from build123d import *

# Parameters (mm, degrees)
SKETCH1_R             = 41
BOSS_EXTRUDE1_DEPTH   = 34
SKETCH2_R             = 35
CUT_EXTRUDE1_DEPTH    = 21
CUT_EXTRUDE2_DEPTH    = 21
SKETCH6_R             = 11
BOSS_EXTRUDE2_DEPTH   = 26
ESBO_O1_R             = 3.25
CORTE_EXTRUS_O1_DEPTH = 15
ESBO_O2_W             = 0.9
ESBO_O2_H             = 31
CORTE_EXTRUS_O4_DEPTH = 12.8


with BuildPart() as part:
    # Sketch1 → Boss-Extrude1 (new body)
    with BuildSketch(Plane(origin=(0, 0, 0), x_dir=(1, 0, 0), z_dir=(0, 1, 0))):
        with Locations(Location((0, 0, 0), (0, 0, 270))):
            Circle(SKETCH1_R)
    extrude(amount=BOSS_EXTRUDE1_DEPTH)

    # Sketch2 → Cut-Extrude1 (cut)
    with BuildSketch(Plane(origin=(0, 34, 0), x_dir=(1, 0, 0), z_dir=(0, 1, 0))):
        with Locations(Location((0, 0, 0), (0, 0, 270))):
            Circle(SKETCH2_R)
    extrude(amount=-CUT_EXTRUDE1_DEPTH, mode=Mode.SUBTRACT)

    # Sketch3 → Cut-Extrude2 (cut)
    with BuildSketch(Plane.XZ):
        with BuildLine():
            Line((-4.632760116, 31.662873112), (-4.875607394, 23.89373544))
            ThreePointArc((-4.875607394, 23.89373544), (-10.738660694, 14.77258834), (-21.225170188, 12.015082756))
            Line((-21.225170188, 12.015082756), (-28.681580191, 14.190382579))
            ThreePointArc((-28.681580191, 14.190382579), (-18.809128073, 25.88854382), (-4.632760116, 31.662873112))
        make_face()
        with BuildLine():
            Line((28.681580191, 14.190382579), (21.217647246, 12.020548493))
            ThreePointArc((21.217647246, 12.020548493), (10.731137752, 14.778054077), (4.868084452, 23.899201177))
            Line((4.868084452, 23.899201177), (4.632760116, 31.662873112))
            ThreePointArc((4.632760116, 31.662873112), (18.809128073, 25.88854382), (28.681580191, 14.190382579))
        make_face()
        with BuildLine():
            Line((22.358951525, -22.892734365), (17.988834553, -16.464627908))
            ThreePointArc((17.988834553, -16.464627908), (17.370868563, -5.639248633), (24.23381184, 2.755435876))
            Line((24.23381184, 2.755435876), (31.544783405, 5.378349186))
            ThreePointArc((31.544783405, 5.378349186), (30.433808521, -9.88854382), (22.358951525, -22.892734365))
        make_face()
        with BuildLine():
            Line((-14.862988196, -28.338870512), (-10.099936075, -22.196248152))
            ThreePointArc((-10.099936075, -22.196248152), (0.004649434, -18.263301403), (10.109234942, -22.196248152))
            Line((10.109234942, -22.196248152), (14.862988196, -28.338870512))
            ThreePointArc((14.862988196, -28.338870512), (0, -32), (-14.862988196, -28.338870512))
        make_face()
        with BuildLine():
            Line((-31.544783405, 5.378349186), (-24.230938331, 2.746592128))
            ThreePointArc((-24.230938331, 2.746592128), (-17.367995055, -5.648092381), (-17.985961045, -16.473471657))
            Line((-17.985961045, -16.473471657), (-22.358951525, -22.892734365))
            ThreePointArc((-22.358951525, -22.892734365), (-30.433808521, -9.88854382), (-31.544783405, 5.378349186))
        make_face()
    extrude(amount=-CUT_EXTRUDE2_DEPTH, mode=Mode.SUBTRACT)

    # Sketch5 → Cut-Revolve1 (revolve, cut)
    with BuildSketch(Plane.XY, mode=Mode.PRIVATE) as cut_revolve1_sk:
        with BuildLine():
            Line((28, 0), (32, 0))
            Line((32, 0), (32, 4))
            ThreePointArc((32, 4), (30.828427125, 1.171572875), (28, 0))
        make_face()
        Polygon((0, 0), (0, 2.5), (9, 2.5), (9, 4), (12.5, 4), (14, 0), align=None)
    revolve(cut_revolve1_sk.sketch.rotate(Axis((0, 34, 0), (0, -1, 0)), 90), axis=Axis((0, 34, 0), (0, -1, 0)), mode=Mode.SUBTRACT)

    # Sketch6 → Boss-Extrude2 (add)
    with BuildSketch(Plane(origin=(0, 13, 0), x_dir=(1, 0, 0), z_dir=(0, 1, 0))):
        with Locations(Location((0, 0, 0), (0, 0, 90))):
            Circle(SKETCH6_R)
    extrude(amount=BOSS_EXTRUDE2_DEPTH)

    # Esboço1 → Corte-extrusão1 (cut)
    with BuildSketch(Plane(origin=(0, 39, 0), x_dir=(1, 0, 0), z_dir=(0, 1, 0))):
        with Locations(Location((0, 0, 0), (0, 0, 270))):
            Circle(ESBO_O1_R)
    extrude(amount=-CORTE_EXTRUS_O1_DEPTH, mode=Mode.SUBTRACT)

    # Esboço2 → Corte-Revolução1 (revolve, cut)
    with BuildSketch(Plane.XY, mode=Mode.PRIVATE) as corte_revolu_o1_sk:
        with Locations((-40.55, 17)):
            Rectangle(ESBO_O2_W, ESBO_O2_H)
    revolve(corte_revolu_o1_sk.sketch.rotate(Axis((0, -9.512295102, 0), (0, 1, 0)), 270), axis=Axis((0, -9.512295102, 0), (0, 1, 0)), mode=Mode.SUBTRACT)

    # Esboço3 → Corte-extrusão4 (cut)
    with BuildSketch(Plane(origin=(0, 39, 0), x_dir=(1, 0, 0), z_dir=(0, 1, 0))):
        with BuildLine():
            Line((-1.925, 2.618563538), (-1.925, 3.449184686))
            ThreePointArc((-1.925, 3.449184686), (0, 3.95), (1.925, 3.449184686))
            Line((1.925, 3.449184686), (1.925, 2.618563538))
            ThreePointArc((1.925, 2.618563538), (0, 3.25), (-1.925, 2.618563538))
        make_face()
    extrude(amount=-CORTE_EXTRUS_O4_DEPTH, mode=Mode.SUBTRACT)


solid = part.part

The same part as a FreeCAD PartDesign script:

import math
import FreeCAD as App
import Part
import Sketcher

V = App.Vector


def add_polygon(sketch, points):
    """Adds a closed chain of lines whose ends are joined by coincident constraints."""
    first, n = sketch.GeometryCount, len(points)
    for a, b in zip(points, points[1:] + points[:1]):
        sketch.addGeometry(Part.LineSegment(App.Vector(*a, 0), App.Vector(*b, 0)), False)
    for i in range(n):
        sketch.addConstraint(Sketcher.Constraint("Coincident", first + i, 2, first + (i + 1) % n, 1))

doc = App.newDocument("Part")
body = doc.addObject("PartDesign::Body", "Body")

# Sketch on XZ plane
sketch1 = doc.addObject("Sketcher::SketchObject", "Sketch")
body.addObject(sketch1)
sketch1.AttachmentSupport = (doc.XZ_Plane, [""])
sketch1.MapMode = "FlatFace"
sketch1.addGeometry(Part.Circle(V(0, 0, 0), V(0, 0, 1), 41), False)
sketch1.addConstraint([
    Sketcher.Constraint("Coincident", 0, 3, -1, 1),
    Sketcher.Constraint("Diameter", 0, 82.0),
])
pad1 = doc.addObject("PartDesign::Pad", "Pad")
body.addObject(pad1)
pad1.Profile = sketch1
pad1.Length = 34
pad1.Reversed = True

# Sketch on XZ plane
sketch2 = doc.addObject("Sketcher::SketchObject", "Sketch001")
body.addObject(sketch2)
sketch2.AttachmentSupport = (doc.XZ_Plane, [""])
sketch2.MapMode = "FlatFace"
sketch2.AttachmentOffset = App.Placement(V(0, 0, -34), App.Rotation())
sketch2.addGeometry(Part.Circle(V(0, 0, 0), V(0, 0, 1), 35), False)
sketch2.addConstraint([
    Sketcher.Constraint("Coincident", 0, 3, -1, 1),
    Sketcher.Constraint("Diameter", 0, 70.0),
])
pocket1 = doc.addObject("PartDesign::Pocket", "Pocket")
body.addObject(pocket1)
pocket1.Profile = sketch2
pocket1.Length = 21
pocket1.Reversed = True

# Sketch on XZ plane
sketch3 = doc.addObject("Sketcher::SketchObject", "Sketch002")
body.addObject(sketch3)
sketch3.AttachmentSupport = (doc.XZ_Plane, [""])
sketch3.MapMode = "FlatFace"
sketch3.addGeometry([
    Part.LineSegment(V(-5, 24, 0), V(-5, 32, 0)),  # 0
    Part.ArcOfCircle(Part.Circle(V(0, 0, 0), V(0, 0, 1), 32), math.radians(98), math.radians(154)),  # 1
    Part.LineSegment(V(-29, 14, 0), V(-21, 12, 0)),  # 2
    Part.ArcOfCircle(Part.Circle(V(-20, 27, 0), V(0, 0, 1), 15), math.radians(-97), math.radians(-11)),  # 3
    Part.LineSegment(V(21, 12, 0), V(29, 14, 0)),  # 4
    Part.ArcOfCircle(Part.Circle(V(0, 0, 0), V(0, 0, 1), 32), math.radians(26), math.radians(82)),  # 5
    Part.LineSegment(V(5, 32, 0), V(5, 24, 0)),  # 6
    Part.ArcOfCircle(Part.Circle(V(20, 27, 0), V(0, 0, 1), 15), math.radians(-169), math.radians(-83)),  # 7
    Part.LineSegment(V(18, -16, 0), V(22, -23, 0)),  # 8
    Part.ArcOfCircle(Part.Circle(V(0, 0, 0), V(0, 0, 1), 32), math.radians(-46), math.radians(10)),  # 9
    Part.LineSegment(V(32, 5, 0), V(24, 3, 0)),  # 10
    Part.ArcOfCircle(Part.Circle(V(32, -10, 0), V(0, 0, 1), 15), math.radians(119), math.radians(205)),  # 11
    Part.LineSegment(V(-10, -22, 0), V(-15, -28, 0)),  # 12
    Part.ArcOfCircle(Part.Circle(V(0, 0, 0), V(0, 0, 1), 32), math.radians(-118), math.radians(-62)),  # 13
    Part.LineSegment(V(15, -28, 0), V(10, -22, 0)),  # 14
    Part.ArcOfCircle(Part.Circle(V(0, -33, 0), V(0, 0, 1), 15), math.radians(47), math.radians(133)),  # 15
    Part.LineSegment(V(-24, 3, 0), V(-32, 5, 0)),  # 16
    Part.ArcOfCircle(Part.Circle(V(0, 0, 0), V(0, 0, 1), 32), math.radians(170), math.radians(226)),  # 17
    Part.LineSegment(V(-22, -23, 0), V(-18, -16, 0)),  # 18
    Part.ArcOfCircle(Part.Circle(V(-32, -10, 0), V(0, 0, 1), 15), math.radians(-25), math.radians(61)),  # 19
], False)
sketch3.addConstraint([
    Sketcher.Constraint("Coincident", 0, 2, 1, 1),
    Sketcher.Constraint("Coincident", 1, 2, 2, 1),
    Sketcher.Constraint("Coincident", 2, 2, 3, 1),
    Sketcher.Constraint("Coincident", 3, 2, 0, 1),
    Sketcher.Constraint("Coincident", 4, 2, 5, 1),
    Sketcher.Constraint("Coincident", 5, 2, 6, 1),
    Sketcher.Constraint("Coincident", 6, 2, 7, 1),
    Sketcher.Constraint("Coincident", 7, 2, 4, 1),
    Sketcher.Constraint("Coincident", 8, 2, 9, 1),
    Sketcher.Constraint("Coincident", 9, 2, 10, 1),
    Sketcher.Constraint("Coincident", 10, 2, 11, 1),
    Sketcher.Constraint("Coincident", 11, 2, 8, 1),
    Sketcher.Constraint("Coincident", 12, 2, 13, 1),
    Sketcher.Constraint("Coincident", 13, 2, 14, 1),
    Sketcher.Constraint("Coincident", 14, 2, 15, 1),
    Sketcher.Constraint("Coincident", 15, 2, 12, 1),
    Sketcher.Constraint("Coincident", 16, 2, 17, 1),
    Sketcher.Constraint("Coincident", 17, 2, 18, 1),
    Sketcher.Constraint("Coincident", 18, 2, 19, 1),
    Sketcher.Constraint("Coincident", 19, 2, 16, 1),
    Sketcher.Constraint("Coincident", 1, 3, -1, 1),
    Sketcher.Constraint("Coincident", 5, 3, -1, 1),
    Sketcher.Constraint("Coincident", 9, 3, -1, 1),
    Sketcher.Constraint("Coincident", 13, 3, -1, 1),
    Sketcher.Constraint("Coincident", 17, 3, -1, 1),
    Sketcher.Constraint("Equal", 1, 5),
    Sketcher.Constraint("Equal", 3, 7),
    Sketcher.Constraint("Equal", 5, 9),
    Sketcher.Constraint("Equal", 7, 11),
    Sketcher.Constraint("Equal", 9, 13),
    Sketcher.Constraint("Equal", 11, 15),
    Sketcher.Constraint("Equal", 13, 17),
    Sketcher.Constraint("Equal", 15, 19),
    Sketcher.Constraint("Horizontal", 1, 2, 4, 2),
    Sketcher.Constraint("Horizontal", 0, 2, 5, 2),
    Sketcher.Constraint("Horizontal", 12, 2, 13, 2),
    Sketcher.Constraint("Horizontal", 14, 2, 15, 2),
    Sketcher.Constraint("Horizontal", 9, 2, 16, 2),
    Sketcher.Constraint("Horizontal", 8, 2, 17, 2),
    Sketcher.Constraint("Equal", 0, 4),
    Sketcher.Constraint("Equal", 2, 6),
    Sketcher.Constraint("Equal", 4, 8),
    Sketcher.Constraint("Equal", 6, 10),
    Sketcher.Constraint("Equal", 8, 12),
    Sketcher.Constraint("Equal", 10, 14),
    Sketcher.Constraint("Equal", 12, 16),
    Sketcher.Constraint("Equal", 14, 18),
    Sketcher.Constraint("Radius", 1, 32.0),
    Sketcher.Constraint("Radius", 3, 14.946899),
    Sketcher.Constraint("DistanceY", 9, 2, 7, 3, 21.492),
    Sketcher.Constraint("DistanceY", 15, 3, -1, 1, 33.210201),
    Sketcher.Constraint("DistanceY", -1, 1, 6, 2, 23.899201),
    Sketcher.Constraint("DistanceY", 1, 2, 3, 3, 12.674501),
    Sketcher.Constraint("DistanceY", 2, 2, 1, 2, 2.1753),
    Sketcher.Constraint("DistanceY", 7, 2, 7, 3, 14.849801),
    Sketcher.Constraint("DistanceX", 14, 2, 11, 2, 7.8796),
    Sketcher.Constraint("DistanceX", 17, 2, 15, 3, 22.363601),
    Sketcher.Constraint("DistanceY", 12, 2, 18, 2, 11.865399),
    Sketcher.Constraint("DistanceY", -1, 1, 7, 3, 26.87035),
    Sketcher.Constraint("DistanceX", -1, 1, 15, 3, 0.004649),
    Sketcher.Constraint("DistanceX", 19, 3, -1, 1, 31.583341),
    Sketcher.Constraint("DistanceY", 19, 3, -1, 1, 10.266938),
    Sketcher.Constraint("DistanceX", 0, 2, -1, 1, 4.63276),
    Sketcher.Constraint("DistanceX", 1, 2, -1, 1, 28.68158),
    Sketcher.Constraint("DistanceX", -1, 1, 10, 2, 24.233812),
])
pocket2 = doc.addObject("PartDesign::Pocket", "Pocket001")
body.addObject(pocket2)
pocket2.Profile = sketch3
pocket2.Length = 21

# Sketch on XY plane
sketch4 = doc.addObject("Sketcher::SketchObject", "Sketch003")
body.addObject(sketch4)
sketch4.AttachmentSupport = (doc.XY_Plane, [""])
sketch4.MapMode = "FlatFace"
sketch4.addGeometry(Part.LineSegment(V(28, 0, 0), V(32, 0, 0)), False)  # 0
sketch4.addGeometry(Part.LineSegment(V(32, 0, 0), V(32, 4, 0)), False)  # 1
sketch4.addGeometry(Part.ArcOfCircle(Part.Circle(V(28, 4, 0), V(0, 0, 1), 4), math.radians(-90), math.radians(0)), False)  # 2
add_polygon(sketch4, [(0, 2.5), (0, 0), (14, 0), (12.5, 4), (9, 4), (9, 2.5)])  # lines 3-8
sketch4.addConstraint([
    Sketcher.Constraint("Coincident", 0, 2, 1, 1),
    Sketcher.Constraint("Tangent", 1, 2, 2, 2),
    Sketcher.Constraint("Tangent", 2, 1, 0, 1),
    Sketcher.Constraint("Horizontal", 0),
    Sketcher.Constraint("Vertical", 1),
    Sketcher.Constraint("Vertical", 3),
    Sketcher.Constraint("Horizontal", 4),
    Sketcher.Constraint("Horizontal", 6),
    Sketcher.Constraint("Vertical", 7),
    Sketcher.Constraint("Horizontal", 8),
    Sketcher.Constraint("Coincident", 3, 2, -1, 1),
    Sketcher.Constraint("PointOnObject", 0, 2, -1),
    Sketcher.Constraint("Horizontal", 1, 2, 5, 2),
    Sketcher.Constraint("Radius", 2, 4.0),
    Sketcher.Constraint("DistanceX", 4, 1, 4, 2, 14.0),
    Sketcher.Constraint("DistanceX", 8, 2, 8, 1, 9.0),
    Sketcher.Constraint("DistanceX", 6, 2, 6, 1, 3.5),
    Sketcher.Constraint("DistanceY", 3, 2, 3, 1, 2.5),
    Sketcher.Constraint("DistanceX", -1, 1, 2, 3, 28.0),
])
groove = doc.addObject("PartDesign::Groove", "Groove")
body.addObject(groove)
groove.Profile = sketch4
groove.ReferenceAxis = (sketch4, ["V_Axis"])
groove.Angle = 360

# Sketch on XZ plane
sketch5 = doc.addObject("Sketcher::SketchObject", "Sketch004")
body.addObject(sketch5)
sketch5.AttachmentSupport = (doc.XZ_Plane, [""])
sketch5.MapMode = "FlatFace"
sketch5.AttachmentOffset = App.Placement(V(0, 0, -13), App.Rotation())
sketch5.addGeometry(Part.Circle(V(0, 0, 0), V(0, 0, 1), 11), False)
sketch5.addConstraint([
    Sketcher.Constraint("Coincident", 0, 3, -1, 1),
    Sketcher.Constraint("Diameter", 0, 22.0),
])
pad2 = doc.addObject("PartDesign::Pad", "Pad001")
body.addObject(pad2)
pad2.Profile = sketch5
pad2.Length = 26
pad2.Reversed = True

# Sketch on XZ plane
sketch6 = doc.addObject("Sketcher::SketchObject", "Sketch005")
body.addObject(sketch6)
sketch6.AttachmentSupport = (doc.XZ_Plane, [""])
sketch6.MapMode = "FlatFace"
sketch6.AttachmentOffset = App.Placement(V(0, 0, -39), App.Rotation())
sketch6.addGeometry(Part.Circle(V(0, 0, 0), V(0, 0, 1), 3.2), False)
sketch6.addConstraint([
    Sketcher.Constraint("Coincident", 0, 3, -1, 1),
    Sketcher.Constraint("Diameter", 0, 6.5),
])
pocket3 = doc.addObject("PartDesign::Pocket", "Pocket002")
body.addObject(pocket3)
pocket3.Profile = sketch6
pocket3.Length = 15
pocket3.Reversed = True

# Sketch on XY plane
sketch7 = doc.addObject("Sketcher::SketchObject", "Sketch006")
body.addObject(sketch7)
sketch7.AttachmentSupport = (doc.XY_Plane, [""])
sketch7.MapMode = "FlatFace"
add_polygon(sketch7, [(-41, 32.5), (-41, 1.5), (-40.1, 1.5), (-40.1, 32.5)])  # lines 0-3
sketch7.addConstraint([
    Sketcher.Constraint("Vertical", 0),
    Sketcher.Constraint("Horizontal", 1),
    Sketcher.Constraint("Vertical", 2),
    Sketcher.Constraint("Horizontal", 3),
    Sketcher.Constraint("DistanceY", 0, 2, 0, 1, 31.0),
    Sketcher.Constraint("DistanceX", 1, 1, 1, 2, 0.9),
    Sketcher.Constraint("DistanceX", 0, 2, -1, 1, 41.0),
    Sketcher.Constraint("DistanceY", -1, 1, 0, 2, 1.5),
])
groove2 = doc.addObject("PartDesign::Groove", "Groove001")
body.addObject(groove2)
groove2.Profile = sketch7
groove2.ReferenceAxis = (sketch7, ["V_Axis"])
groove2.Angle = 360

# Sketch on XZ plane
sketch8 = doc.addObject("Sketcher::SketchObject", "Sketch007")
body.addObject(sketch8)
sketch8.AttachmentSupport = (doc.XZ_Plane, [""])
sketch8.MapMode = "FlatFace"
sketch8.AttachmentOffset = App.Placement(V(0, 0, -39), App.Rotation())
sketch8.addGeometry([
    Part.LineSegment(V(-1.9, -3.4, 0), V(-1.9, -2.6, 0)),
    Part.ArcOfCircle(Part.Circle(V(0, 0, 0), V(0, 0, 1), 3.3), math.radians(-126), math.radians(-54)),
    Part.LineSegment(V(1.9, -2.6, 0), V(1.9, -3.4, 0)),
    Part.ArcOfCircle(Part.Circle(V(0, 0, 0), V(0, 0, 1), 3.9), math.radians(-119), math.radians(-61)),
], False)
sketch8.addConstraint([
    Sketcher.Constraint("Coincident", 0, 2, 1, 1),
    Sketcher.Constraint("Coincident", 1, 2, 2, 1),
    Sketcher.Constraint("Coincident", 2, 2, 3, 2),
    Sketcher.Constraint("Coincident", 3, 1, 0, 1),
    Sketcher.Constraint("Vertical", 0),
    Sketcher.Constraint("Vertical", 2),
    Sketcher.Constraint("Coincident", 1, 3, -1, 1),
    Sketcher.Constraint("Coincident", 3, 3, -1, 1),
    Sketcher.Constraint("Horizontal", 0, 2, 1, 2),
    Sketcher.Constraint("Radius", 1, 3.25),
    Sketcher.Constraint("Radius", 3, 3.95),
    Sketcher.Constraint("DistanceX", 0, 2, 1, 2, 3.85),
])
pocket4 = doc.addObject("PartDesign::Pocket", "Pocket003")
body.addObject(pocket4)
pocket4.Profile = sketch8
pocket4.Length = 12.8
pocket4.Reversed = True

doc.recompute()
